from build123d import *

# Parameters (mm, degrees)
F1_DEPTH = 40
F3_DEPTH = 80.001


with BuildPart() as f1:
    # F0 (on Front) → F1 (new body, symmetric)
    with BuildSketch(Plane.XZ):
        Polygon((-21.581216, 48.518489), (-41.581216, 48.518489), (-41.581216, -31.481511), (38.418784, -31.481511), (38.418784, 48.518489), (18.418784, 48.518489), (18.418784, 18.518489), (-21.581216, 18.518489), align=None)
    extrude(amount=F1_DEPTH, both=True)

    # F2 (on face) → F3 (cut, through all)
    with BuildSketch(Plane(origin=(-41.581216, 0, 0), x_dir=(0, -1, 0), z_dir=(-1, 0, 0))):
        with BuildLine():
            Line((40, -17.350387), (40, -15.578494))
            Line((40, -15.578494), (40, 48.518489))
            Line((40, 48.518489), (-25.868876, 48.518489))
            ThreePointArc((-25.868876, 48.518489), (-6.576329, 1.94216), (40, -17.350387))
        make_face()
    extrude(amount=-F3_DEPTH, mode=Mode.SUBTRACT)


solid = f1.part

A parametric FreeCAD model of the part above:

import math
import FreeCAD as App
import Part
import Sketcher
from FreeCAD import Vector
Q = App.Units.Quantity

doc = App.newDocument("Part")
params = doc.addObject("Spreadsheet::Sheet", "Params")
for row, (alias, value) in enumerate([
    ("sketch1_width", "20 mm"),
    ("sketch1_width2", "80 mm"),
    ("sketch1_height", "30 mm"),
    ("pad1_length", "80 mm"),
], start=1):
    params.set(f"A{row}", alias)
    params.set(f"B{row}", "=" + value)
    params.setAlias(f"B{row}", alias)

body = doc.addObject("PartDesign::Body", "Body")

# Sketch on XZ plane
sketch1 = body.newObject("Sketcher::SketchObject", "Sketch")
sketch1.AttachmentSupport = (doc.getObject("XZ_Plane"), [""])
sketch1.MapMode = "FlatFace"
sketch1.addGeometry([
    Part.LineSegment(Vector(-22, 49, 0), Vector(-42, 49, 0)),  # 0
    Part.LineSegment(Vector(-42, 49, 0), Vector(-42, -31, 0)),  # 1
    Part.LineSegment(Vector(-42, -31, 0), Vector(38, -31, 0)),  # 2
    Part.LineSegment(Vector(38, -31, 0), Vector(38, 49, 0)),  # 3
    Part.LineSegment(Vector(38, 49, 0), Vector(18, 49, 0)),  # 4
    Part.LineSegment(Vector(18, 49, 0), Vector(18, 19, 0)),  # 5
    Part.LineSegment(Vector(18, 19, 0), Vector(-22, 19, 0)),  # 6
    Part.LineSegment(Vector(-22, 19, 0), Vector(-22, 49, 0)),  # 7
], False)
sketch1.addConstraint([
    Sketcher.Constraint("Coincident", 0, 2, 1, 1),
    Sketcher.Constraint("Coincident", 1, 2, 2, 1),
    Sketcher.Constraint("Coincident", 2, 2, 3, 1),
    Sketcher.Constraint("Coincident", 3, 2, 4, 1),
    Sketcher.Constraint("Coincident", 4, 2, 5, 1),
    Sketcher.Constraint("Coincident", 5, 2, 6, 1),
    Sketcher.Constraint("Coincident", 6, 2, 7, 1),
    Sketcher.Constraint("Coincident", 7, 2, 0, 1),
    Sketcher.Constraint("Horizontal", 0),
    Sketcher.Constraint("Vertical", 1),
    Sketcher.Constraint("Horizontal", 2),
    Sketcher.Constraint("Vertical", 3),
    Sketcher.Constraint("Horizontal", 4),
    Sketcher.Constraint("Vertical", 5),
    Sketcher.Constraint("Horizontal", 6),
    Sketcher.Constraint("Vertical", 7),
    Sketcher.Constraint("Horizontal", 0, 2, 3, 2),
    Sketcher.Constraint("Equal", 0, 4),
    Sketcher.Constraint("Equal", 2, 1),
    Sketcher.Constraint("DistanceX", 0, 2, 0, 1, Q("20 mm")),
    Sketcher.Constraint("DistanceX", 2, 1, 2, 2, Q("80 mm")),
    Sketcher.Constraint("DistanceY", 5, 2, 5, 1, Q("30 mm")),
    Sketcher.Constraint("DistanceY", -1, 1, 0, 2, Q("48.518489 mm")),
    Sketcher.Constraint("DistanceX", 0, 2, -1, 1, Q("41.581216 mm")),
])
sketch1.setExpression("Constraints[19]", "Params.sketch1_width")
sketch1.setExpression("Constraints[20]", "Params.sketch1_width2")
sketch1.setExpression("Constraints[21]", "Params.sketch1_height")
pad1 = body.newObject("PartDesign::Pad", "Pad")
pad1.Profile = sketch1
pad1.setExpression("Length", "Params.pad1_length")
pad1.Midplane = True

# Sketch on YZ plane
sketch2 = body.newObject("Sketcher::SketchObject", "Sketch001")
sketch2.AttachmentSupport = (doc.getObject("YZ_Plane"), [""])
sketch2.MapMode = "FlatFace"
sketch2.AttachmentOffset = App.Placement(Vector(0, 0, -41.581216), App.Rotation())
sketch2.addGeometry([
    Part.LineSegment(Vector(-40, -17, 0), Vector(-40, 49, 0)),
    Part.LineSegment(Vector(-40, 49, 0), Vector(26, 49, 0)),
    Part.ArcOfCircle(Part.Circle(Vector(-40, 49, 0), Vector(0, 0, 1), 66), math.radians(-90), math.radians(0)),
], False)
sketch2.addConstraint([
    Sketcher.Constraint("Coincident", 0, 2, 1, 1),
    Sketcher.Constraint("Coincident", 1, 2, 2, 2),
    Sketcher.Constraint("Coincident", 2, 1, 0, 1),
    Sketcher.Constraint("Vertical", 0),
    Sketcher.Constraint("Horizontal", 1),
    Sketcher.Constraint("Coincident", 0, 2, 2, 3),
    Sketcher.Constraint("DistanceX", 2, 3, -1, 1, Q("40 mm")),
    Sketcher.Constraint("Radius", 2, Q("65.868876 mm")),
    Sketcher.Constraint("DistanceY", -1, 1, 2, 3, Q("48.518489 mm")),
])
pocket1 = body.newObject("PartDesign::Pocket", "Pocket")
pocket1.Profile = sketch2
pocket1.Type = "ThroughAll"
pocket1.Reversed = True

doc.recompute()
